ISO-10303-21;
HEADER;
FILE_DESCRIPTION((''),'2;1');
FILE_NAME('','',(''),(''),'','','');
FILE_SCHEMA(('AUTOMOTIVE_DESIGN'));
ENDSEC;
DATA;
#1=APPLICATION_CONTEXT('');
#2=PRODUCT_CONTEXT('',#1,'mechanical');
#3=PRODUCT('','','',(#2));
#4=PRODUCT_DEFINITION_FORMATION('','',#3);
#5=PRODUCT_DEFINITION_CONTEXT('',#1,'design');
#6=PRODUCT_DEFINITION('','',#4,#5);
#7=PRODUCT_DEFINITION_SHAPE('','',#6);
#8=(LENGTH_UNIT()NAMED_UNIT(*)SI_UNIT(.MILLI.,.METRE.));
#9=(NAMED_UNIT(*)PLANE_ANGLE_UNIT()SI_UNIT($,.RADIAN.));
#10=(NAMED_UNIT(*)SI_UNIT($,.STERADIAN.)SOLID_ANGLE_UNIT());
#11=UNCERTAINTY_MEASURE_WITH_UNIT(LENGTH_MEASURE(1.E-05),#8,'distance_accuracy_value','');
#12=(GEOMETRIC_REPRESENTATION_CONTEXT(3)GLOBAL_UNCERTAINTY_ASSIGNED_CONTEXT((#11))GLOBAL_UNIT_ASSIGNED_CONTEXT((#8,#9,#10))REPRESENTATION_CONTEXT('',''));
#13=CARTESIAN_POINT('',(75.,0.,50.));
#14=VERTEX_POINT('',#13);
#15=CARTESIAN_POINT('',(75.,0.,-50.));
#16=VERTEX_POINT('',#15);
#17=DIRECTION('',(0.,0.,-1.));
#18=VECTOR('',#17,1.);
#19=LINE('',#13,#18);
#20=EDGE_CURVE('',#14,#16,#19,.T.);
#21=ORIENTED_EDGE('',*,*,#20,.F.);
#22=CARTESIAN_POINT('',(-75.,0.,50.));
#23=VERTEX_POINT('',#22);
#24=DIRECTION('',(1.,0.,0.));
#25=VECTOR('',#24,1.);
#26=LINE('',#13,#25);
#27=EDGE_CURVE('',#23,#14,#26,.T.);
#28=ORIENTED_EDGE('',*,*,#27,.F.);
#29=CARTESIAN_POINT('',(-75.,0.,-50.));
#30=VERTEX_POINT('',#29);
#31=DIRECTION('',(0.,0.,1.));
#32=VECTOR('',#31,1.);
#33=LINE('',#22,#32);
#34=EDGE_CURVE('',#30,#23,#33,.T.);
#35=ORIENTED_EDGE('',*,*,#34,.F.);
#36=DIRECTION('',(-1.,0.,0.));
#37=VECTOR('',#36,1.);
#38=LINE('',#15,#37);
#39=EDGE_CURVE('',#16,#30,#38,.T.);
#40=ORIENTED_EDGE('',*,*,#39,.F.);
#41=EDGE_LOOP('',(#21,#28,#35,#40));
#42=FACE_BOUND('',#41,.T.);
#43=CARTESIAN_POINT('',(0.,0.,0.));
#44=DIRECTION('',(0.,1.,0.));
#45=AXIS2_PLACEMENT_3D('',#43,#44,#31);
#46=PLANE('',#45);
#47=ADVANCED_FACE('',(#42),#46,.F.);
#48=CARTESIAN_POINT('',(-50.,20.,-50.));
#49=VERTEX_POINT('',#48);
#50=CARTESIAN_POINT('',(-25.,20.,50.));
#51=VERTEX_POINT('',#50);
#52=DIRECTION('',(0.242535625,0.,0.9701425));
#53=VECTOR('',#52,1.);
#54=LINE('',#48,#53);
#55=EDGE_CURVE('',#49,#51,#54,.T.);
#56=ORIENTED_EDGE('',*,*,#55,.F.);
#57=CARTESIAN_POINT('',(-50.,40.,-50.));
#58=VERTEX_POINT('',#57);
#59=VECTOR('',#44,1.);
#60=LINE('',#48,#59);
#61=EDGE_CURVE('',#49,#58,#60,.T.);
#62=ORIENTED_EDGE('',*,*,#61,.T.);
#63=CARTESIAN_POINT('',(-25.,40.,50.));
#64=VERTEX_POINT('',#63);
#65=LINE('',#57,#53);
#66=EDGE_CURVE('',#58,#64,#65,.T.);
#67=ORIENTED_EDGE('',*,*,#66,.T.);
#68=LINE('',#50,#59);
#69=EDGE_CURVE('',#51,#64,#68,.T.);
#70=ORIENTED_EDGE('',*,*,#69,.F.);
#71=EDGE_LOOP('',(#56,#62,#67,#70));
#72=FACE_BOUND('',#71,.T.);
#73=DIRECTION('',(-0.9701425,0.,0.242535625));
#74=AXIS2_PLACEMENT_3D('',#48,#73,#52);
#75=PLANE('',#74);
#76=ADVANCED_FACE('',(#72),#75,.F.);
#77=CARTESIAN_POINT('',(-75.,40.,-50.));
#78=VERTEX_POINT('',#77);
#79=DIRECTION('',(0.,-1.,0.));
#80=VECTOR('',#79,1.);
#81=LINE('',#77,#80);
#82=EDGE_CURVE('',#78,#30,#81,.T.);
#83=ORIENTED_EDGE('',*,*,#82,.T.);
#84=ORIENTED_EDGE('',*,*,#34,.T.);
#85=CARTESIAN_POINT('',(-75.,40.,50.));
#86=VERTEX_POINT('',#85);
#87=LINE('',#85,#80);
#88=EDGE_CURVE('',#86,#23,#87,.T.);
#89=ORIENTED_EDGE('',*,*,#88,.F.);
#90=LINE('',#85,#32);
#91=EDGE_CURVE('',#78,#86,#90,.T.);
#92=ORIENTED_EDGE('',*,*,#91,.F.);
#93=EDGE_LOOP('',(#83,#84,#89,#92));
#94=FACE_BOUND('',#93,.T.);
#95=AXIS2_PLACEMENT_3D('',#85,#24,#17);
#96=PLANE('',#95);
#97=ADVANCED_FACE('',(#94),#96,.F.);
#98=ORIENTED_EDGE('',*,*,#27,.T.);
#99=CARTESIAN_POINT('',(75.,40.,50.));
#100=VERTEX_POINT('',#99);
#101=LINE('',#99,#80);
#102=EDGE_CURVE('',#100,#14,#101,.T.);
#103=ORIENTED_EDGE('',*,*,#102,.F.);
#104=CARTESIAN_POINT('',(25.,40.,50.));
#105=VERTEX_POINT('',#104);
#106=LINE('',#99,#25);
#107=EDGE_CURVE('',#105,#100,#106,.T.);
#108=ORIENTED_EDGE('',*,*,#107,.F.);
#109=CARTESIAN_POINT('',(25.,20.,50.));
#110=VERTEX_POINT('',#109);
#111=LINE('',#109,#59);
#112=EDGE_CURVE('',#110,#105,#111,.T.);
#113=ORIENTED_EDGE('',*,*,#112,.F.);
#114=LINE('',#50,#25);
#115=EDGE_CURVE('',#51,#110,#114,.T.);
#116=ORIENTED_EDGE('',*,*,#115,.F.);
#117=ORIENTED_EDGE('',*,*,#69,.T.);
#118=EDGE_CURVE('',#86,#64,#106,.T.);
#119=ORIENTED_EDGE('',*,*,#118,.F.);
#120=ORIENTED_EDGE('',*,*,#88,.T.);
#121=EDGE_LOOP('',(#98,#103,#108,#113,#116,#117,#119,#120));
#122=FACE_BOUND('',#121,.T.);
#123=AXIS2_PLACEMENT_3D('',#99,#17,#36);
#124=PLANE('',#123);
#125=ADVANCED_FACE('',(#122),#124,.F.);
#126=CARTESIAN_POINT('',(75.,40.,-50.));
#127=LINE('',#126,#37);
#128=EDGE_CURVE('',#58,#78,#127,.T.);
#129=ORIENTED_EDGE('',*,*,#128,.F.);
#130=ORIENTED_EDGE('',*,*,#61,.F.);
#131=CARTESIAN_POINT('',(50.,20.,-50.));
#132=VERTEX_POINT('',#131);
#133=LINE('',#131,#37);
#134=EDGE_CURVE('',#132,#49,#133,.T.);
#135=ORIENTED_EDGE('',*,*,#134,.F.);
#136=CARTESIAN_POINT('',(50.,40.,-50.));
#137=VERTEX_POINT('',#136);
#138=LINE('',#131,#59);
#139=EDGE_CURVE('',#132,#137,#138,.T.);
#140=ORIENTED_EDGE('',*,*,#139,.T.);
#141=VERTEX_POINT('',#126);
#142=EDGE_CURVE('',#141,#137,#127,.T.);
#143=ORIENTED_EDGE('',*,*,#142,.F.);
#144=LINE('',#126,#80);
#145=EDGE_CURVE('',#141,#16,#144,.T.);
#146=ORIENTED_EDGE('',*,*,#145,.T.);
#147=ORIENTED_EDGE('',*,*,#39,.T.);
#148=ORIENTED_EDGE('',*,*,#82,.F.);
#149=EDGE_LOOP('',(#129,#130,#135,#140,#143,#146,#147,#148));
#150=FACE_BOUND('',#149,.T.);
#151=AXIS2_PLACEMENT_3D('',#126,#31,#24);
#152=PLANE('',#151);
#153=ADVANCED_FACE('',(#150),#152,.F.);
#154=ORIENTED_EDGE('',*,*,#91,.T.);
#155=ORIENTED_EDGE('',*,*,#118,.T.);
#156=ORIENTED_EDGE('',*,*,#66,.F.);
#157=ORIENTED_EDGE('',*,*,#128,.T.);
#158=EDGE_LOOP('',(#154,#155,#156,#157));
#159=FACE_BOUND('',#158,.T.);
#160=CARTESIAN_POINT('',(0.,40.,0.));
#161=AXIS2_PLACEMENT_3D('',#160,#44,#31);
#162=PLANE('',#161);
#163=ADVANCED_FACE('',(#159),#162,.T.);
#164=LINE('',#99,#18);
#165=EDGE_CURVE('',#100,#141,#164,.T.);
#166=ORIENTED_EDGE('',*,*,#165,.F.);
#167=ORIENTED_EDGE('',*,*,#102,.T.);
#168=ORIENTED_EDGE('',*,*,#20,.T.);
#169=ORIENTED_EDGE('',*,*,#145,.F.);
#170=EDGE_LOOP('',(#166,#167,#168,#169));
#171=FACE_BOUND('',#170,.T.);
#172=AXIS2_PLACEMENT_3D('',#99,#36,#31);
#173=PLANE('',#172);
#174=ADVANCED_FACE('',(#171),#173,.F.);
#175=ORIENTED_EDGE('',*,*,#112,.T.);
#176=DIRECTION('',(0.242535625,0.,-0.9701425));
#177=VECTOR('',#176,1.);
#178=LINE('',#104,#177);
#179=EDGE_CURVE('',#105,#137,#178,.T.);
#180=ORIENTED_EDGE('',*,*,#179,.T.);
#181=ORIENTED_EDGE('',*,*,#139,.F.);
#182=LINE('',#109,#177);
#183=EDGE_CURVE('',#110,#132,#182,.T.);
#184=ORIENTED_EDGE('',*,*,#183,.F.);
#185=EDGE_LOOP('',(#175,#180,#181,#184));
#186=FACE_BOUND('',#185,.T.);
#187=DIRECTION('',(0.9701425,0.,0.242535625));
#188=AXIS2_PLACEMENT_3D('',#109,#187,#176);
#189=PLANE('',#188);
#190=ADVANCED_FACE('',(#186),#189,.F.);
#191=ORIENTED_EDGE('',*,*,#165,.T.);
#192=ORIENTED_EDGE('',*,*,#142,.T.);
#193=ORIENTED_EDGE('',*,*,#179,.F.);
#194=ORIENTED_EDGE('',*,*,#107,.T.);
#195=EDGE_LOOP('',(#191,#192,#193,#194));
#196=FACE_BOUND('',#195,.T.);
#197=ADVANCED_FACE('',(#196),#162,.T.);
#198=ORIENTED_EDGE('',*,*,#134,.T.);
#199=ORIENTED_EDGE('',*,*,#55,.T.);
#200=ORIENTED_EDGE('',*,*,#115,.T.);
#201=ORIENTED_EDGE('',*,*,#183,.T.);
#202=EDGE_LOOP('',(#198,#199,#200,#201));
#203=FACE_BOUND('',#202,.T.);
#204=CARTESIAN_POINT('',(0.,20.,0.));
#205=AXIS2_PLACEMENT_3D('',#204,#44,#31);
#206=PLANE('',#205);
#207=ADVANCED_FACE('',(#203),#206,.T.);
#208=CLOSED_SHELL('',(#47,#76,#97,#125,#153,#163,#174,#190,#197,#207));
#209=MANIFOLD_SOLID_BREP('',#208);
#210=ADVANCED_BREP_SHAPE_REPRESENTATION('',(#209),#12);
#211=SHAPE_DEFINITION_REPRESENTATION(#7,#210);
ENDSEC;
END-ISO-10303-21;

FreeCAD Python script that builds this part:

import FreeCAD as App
import Part
import Sketcher
Q = App.Units.Quantity


def add_polygon(sketch, points):
    """Adds a closed chain of lines whose ends are joined by coincident constraints."""
    first, n = sketch.GeometryCount, len(points)
    for a, b in zip(points, points[1:] + points[:1]):
        sketch.addGeometry(Part.LineSegment(App.Vector(*a, 0), App.Vector(*b, 0)), False)
    for i in range(n):
        sketch.addConstraint(Sketcher.Constraint("Coincident", first + i, 2, first + (i + 1) % n, 1))

doc = App.newDocument("Part")
body = doc.addObject("PartDesign::Body", "Body")

# Sketch on XZ plane
sketch1 = body.newObject("Sketcher::SketchObject", "Sketch")
sketch1.AttachmentSupport = (doc.getObject("XZ_Plane"), [""])
sketch1.MapMode = "FlatFace"
add_polygon(sketch1, [(-75, -50), (-75, 50), (75, 50), (75, -50)])  # lines 0-3
sketch1.addConstraint(Sketcher.Constraint("Vertical", 0))
sketch1.addConstraint(Sketcher.Constraint("Horizontal", 1))
sketch1.addConstraint(Sketcher.Constraint("Vertical", 2))
sketch1.addConstraint(Sketcher.Constraint("Horizontal", 3))
sketch1.addConstraint(Sketcher.Constraint("Symmetric", 0, 2, 2, 2, -1, 1))
sketch1.addConstraint(Sketcher.Constraint("DistanceX", 1, 1, 1, 2, Q("150 mm")))
sketch1.addConstraint(Sketcher.Constraint("DistanceY", 0, 1, 0, 2, Q("100 mm")))
pad1 = body.newObject("PartDesign::Pad", "Pad")
pad1.Profile = sketch1
pad1.Length = 40
pad1.Reversed = True

# Sketch on XZ plane
sketch2 = body.newObject("Sketcher::SketchObject", "Sketch001")
sketch2.AttachmentSupport = (doc.getObject("XZ_Plane"), [""])
sketch2.MapMode = "FlatFace"
sketch2.AttachmentOffset = App.Placement(App.Vector(0, 0, -40), App.Rotation())
add_polygon(sketch2, [(-50, -50), (-25, 50), (25, 50), (50, -50)])  # lines 0-3
sketch2.addConstraint(Sketcher.Constraint("Horizontal", 1))
sketch2.addConstraint(Sketcher.Constraint("Horizontal", 3))
sketch2.addConstraint(Sketcher.Constraint("Equal", 0, 2))
sketch2.addConstraint(Sketcher.Constraint("DistanceX", 1, 1, 1, 2, Q("50 mm")))
sketch2.addConstraint(Sketcher.Constraint("DistanceX", 3, 2, 3, 1, Q("100 mm")))
sketch2.addConstraint(Sketcher.Constraint("DistanceX", 0, 2, -1, 1, Q("25 mm")))
sketch2.addConstraint(Sketcher.Constraint("DistanceY", -1, 1, 0, 2, Q("50 mm")))
sketch2.addConstraint(Sketcher.Constraint("DistanceY", 2, 2, -1, 1, Q("50 mm")))
pocket1 = body.newObject("PartDesign::Pocket", "Pocket")
pocket1.Profile = sketch2
pocket1.Length = 20
pocket1.Reversed = True

doc.recompute()
